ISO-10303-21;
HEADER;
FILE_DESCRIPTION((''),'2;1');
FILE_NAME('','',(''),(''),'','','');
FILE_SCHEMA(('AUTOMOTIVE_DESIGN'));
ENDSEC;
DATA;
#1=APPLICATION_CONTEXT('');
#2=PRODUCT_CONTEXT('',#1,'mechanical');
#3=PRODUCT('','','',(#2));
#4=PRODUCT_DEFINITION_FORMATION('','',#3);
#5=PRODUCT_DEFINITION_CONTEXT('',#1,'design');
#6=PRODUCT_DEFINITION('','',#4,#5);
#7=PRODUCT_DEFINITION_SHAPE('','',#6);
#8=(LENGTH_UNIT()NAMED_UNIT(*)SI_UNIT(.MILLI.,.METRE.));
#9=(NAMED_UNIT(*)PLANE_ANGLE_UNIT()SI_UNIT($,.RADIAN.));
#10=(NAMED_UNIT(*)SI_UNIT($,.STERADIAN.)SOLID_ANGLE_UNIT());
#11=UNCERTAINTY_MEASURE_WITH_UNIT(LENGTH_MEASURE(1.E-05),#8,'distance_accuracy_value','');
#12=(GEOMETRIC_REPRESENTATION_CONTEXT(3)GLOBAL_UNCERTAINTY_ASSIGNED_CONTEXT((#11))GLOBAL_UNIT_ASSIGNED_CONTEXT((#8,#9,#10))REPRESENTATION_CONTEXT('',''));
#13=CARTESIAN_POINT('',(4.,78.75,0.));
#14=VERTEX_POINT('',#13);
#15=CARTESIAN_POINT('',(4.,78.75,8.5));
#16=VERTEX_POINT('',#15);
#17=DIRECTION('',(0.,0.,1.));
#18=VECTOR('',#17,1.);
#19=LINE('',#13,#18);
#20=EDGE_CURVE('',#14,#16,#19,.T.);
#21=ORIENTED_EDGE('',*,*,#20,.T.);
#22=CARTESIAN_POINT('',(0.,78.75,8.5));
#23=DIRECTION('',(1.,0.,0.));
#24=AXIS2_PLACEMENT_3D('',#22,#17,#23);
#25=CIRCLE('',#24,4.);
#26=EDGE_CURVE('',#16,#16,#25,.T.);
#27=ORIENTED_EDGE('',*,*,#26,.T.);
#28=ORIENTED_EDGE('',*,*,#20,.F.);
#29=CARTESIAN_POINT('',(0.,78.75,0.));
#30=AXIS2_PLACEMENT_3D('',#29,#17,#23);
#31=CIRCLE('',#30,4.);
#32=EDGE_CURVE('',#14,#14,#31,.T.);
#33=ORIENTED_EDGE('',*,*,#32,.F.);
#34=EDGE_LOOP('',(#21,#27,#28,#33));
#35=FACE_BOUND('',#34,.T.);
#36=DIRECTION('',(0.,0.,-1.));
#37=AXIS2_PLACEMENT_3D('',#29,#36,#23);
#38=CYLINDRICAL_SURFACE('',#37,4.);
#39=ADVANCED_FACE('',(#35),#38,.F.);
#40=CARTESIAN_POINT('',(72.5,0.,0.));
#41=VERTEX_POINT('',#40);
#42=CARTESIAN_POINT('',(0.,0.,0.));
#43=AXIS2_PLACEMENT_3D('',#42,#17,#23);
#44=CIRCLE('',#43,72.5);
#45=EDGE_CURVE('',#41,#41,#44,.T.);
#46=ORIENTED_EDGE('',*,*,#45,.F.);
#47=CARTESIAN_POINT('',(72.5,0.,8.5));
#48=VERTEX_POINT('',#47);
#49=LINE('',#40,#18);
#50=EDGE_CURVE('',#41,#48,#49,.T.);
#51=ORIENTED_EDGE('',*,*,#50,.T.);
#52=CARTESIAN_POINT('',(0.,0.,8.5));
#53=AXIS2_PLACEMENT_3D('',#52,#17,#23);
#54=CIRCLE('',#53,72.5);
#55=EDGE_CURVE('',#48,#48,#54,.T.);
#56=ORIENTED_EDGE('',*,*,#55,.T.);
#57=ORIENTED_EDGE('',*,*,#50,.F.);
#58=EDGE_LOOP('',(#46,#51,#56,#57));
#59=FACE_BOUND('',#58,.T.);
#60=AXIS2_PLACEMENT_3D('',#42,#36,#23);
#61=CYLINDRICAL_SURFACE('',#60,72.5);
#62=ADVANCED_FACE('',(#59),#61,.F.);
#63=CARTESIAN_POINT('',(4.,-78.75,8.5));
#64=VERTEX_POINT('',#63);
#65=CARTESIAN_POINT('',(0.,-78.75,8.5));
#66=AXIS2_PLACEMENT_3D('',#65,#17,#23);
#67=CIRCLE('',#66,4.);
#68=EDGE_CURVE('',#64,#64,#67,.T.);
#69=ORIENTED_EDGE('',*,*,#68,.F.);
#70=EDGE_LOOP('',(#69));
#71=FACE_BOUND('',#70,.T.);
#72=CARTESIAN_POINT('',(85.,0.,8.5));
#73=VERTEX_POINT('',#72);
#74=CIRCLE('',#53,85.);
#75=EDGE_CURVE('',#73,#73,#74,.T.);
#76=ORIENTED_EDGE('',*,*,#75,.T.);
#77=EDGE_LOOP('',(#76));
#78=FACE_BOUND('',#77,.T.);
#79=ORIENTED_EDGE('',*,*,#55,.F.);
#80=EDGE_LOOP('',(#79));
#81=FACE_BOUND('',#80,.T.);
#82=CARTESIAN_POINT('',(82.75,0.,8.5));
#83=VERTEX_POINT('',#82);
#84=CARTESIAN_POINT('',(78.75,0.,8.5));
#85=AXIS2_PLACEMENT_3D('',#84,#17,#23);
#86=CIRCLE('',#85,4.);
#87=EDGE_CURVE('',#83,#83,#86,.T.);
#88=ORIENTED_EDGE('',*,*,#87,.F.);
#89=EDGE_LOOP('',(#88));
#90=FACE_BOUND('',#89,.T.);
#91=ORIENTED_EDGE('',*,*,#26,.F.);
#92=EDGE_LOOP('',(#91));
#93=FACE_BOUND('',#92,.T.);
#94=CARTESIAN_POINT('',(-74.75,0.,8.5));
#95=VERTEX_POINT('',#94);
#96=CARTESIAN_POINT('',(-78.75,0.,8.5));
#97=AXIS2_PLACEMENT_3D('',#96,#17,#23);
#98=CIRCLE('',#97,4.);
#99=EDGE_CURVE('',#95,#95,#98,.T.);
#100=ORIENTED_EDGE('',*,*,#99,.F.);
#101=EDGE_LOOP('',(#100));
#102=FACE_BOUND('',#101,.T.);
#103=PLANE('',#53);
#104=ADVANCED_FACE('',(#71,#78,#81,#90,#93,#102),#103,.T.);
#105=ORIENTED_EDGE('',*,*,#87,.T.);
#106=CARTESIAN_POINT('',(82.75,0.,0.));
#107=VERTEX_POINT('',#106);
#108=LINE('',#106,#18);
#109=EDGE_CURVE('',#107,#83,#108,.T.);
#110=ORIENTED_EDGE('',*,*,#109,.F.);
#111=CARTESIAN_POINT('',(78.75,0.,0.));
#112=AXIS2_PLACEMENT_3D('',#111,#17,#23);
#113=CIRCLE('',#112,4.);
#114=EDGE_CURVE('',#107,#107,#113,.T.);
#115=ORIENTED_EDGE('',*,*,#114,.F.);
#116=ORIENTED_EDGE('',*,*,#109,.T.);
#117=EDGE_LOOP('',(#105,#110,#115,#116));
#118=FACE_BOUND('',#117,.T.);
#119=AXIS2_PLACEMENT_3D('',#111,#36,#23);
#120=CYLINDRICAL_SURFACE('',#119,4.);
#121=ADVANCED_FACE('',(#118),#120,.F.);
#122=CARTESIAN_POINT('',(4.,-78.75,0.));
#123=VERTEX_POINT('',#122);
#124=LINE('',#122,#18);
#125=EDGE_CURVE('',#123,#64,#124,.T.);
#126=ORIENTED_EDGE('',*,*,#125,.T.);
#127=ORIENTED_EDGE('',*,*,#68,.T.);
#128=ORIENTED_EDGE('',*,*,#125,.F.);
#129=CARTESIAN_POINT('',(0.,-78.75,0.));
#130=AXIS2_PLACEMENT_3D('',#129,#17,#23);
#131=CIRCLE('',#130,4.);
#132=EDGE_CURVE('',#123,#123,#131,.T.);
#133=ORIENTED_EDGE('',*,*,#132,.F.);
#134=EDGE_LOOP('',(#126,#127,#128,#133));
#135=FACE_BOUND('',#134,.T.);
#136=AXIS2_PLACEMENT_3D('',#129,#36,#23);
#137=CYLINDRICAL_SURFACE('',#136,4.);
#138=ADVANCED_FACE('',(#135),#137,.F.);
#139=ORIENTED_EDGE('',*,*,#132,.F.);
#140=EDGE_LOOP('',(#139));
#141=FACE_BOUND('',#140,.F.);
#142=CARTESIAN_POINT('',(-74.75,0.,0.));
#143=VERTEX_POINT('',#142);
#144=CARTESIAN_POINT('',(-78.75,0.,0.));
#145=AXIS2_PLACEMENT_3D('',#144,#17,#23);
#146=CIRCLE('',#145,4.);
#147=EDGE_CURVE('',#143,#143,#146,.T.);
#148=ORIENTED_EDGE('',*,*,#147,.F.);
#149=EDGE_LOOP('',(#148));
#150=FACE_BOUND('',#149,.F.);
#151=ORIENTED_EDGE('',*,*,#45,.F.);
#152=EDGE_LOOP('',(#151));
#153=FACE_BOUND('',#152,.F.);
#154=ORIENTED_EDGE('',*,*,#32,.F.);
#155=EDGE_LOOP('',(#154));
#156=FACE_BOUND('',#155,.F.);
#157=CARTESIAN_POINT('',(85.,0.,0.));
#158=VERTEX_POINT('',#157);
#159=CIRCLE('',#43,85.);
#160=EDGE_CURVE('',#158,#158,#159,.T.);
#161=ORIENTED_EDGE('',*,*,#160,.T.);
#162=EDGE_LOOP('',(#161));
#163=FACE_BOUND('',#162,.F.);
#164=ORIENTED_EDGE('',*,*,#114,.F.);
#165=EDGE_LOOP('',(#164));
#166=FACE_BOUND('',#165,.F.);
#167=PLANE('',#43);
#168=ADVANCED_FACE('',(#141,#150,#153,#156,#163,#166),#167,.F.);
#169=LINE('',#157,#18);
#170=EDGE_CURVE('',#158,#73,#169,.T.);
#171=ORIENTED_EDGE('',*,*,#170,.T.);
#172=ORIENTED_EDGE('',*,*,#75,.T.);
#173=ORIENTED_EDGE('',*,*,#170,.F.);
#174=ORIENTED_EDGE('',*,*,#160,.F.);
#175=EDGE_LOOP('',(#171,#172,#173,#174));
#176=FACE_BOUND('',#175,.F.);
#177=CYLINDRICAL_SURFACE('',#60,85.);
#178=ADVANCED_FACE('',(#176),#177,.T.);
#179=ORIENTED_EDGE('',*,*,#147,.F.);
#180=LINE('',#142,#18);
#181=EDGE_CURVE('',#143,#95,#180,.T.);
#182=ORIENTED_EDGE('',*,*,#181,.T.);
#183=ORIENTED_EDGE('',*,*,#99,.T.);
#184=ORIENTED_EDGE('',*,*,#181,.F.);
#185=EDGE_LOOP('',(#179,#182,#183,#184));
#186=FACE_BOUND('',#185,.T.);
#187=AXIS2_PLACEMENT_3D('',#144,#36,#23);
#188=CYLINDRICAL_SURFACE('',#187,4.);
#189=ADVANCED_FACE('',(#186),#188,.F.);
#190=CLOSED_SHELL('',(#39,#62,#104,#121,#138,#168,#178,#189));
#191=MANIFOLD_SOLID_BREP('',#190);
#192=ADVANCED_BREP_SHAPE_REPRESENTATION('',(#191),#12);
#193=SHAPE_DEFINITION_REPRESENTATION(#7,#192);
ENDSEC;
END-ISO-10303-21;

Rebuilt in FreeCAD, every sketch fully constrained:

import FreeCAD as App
import Part
import Sketcher
from FreeCAD import Vector

doc = App.newDocument("Part")
params = doc.addObject("Spreadsheet::Sheet", "Params")
for row, (alias, value) in enumerate([
    ("sketch1_diameter", "170 mm"),
    ("sketch1_diameter2", "8 mm"),
    ("sketch1_diameter3", "145 mm"),
    ("pad1_length", "8.5 mm"),
], start=1):
    params.set(f"A{row}", alias)
    params.set(f"B{row}", "=" + value)
    params.setAlias(f"B{row}", alias)

body = doc.addObject("PartDesign::Body", "Body")

sketch1 = body.newObject("Sketcher::SketchObject", "Sketch")
sketch1.AttachmentSupport = (doc.getObject("XY_Plane"), [""])
sketch1.MapMode = "FlatFace"
sketch1.addGeometry([
    Part.Circle(Vector(0, 0, 0), Vector(0, 0, 1), 85),
    Part.Circle(Vector(0, -78.8, 0), Vector(0, 0, 1), 4),
    Part.Circle(Vector(-78.8, 0, 0), Vector(0, 0, 1), 4),
    Part.Circle(Vector(0, 0, 0), Vector(0, 0, 1), 72.5),
    Part.Circle(Vector(78.8, 0, 0), Vector(0, 0, 1), 4),
    Part.Circle(Vector(0, 78.8, 0), Vector(0, 0, 1), 4),
], False)
sketch1.addConstraint([
    Sketcher.Constraint("Coincident", 0, 3, -1, 1),
    Sketcher.Constraint("Coincident", 3, 3, -1, 1),
    Sketcher.Constraint("Equal", 1, 2),
    Sketcher.Constraint("Equal", 2, 4),
    Sketcher.Constraint("Equal", 4, 5),
    Sketcher.Constraint("Symmetric", 2, 3, 4, 3, -1, 1),
    Sketcher.Constraint("Symmetric", 1, 3, 5, 3, -1, 1),
    Sketcher.Constraint("PointOnObject", 1, 3, -2),
    Sketcher.Constraint("PointOnObject", 2, 3, -1),
    Sketcher.Constraint("Diameter", 0, 170.0),
    Sketcher.Constraint("Diameter", 1, 8.0),
    Sketcher.Constraint("Diameter", 3, 145.0),
    Sketcher.Constraint("DistanceX", 2, 3, 4, 3, 157.5),
    Sketcher.Constraint("DistanceY", 1, 3, 5, 3, 157.5),
])
sketch1.setExpression("Constraints[9]", "Params.sketch1_diameter")
sketch1.setExpression("Constraints[10]", "Params.sketch1_diameter2")
sketch1.setExpression("Constraints[11]", "Params.sketch1_diameter3")
pad1 = body.newObject("PartDesign::Pad", "Pad")
pad1.Profile = sketch1
pad1.setExpression("Length", "Params.pad1_length")

doc.recompute()
